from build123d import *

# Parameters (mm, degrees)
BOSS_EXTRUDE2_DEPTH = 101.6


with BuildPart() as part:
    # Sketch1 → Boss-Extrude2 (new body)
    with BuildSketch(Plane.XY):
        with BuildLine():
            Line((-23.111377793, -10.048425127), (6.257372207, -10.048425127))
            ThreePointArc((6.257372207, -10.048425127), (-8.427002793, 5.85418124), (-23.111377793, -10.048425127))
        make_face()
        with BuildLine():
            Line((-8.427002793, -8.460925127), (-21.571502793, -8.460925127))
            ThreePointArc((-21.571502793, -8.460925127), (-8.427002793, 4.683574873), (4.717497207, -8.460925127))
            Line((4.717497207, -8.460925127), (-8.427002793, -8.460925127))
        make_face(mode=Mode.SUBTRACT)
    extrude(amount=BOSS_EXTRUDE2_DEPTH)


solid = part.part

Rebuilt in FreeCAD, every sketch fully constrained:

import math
import FreeCAD as App
import Part
import Sketcher
Q = App.Units.Quantity

doc = App.newDocument("Part")
params = doc.addObject("Spreadsheet::Sheet", "Params")
for row, (alias, value) in enumerate([
    ("sketch1_width", "1.15625 in"),
    ("pad1_length", "4 in"),
], start=1):
    params.set(f"A{row}", alias)
    params.set(f"B{row}", "=" + value)
    params.setAlias(f"B{row}", alias)

body = doc.addObject("PartDesign::Body", "Body")

# Sketch on XY plane
sketch1 = doc.addObject("Sketcher::SketchObject", "Sketch")
body.addObject(sketch1)
sketch1.AttachmentSupport = (doc.XY_Plane, [""])
sketch1.MapMode = "FlatFace"
sketch1.addGeometry([
    Part.LineSegment(App.Vector(-23, -10, 0), App.Vector(6, -10, 0)),
    Part.ArcOfCircle(Part.Circle(App.Vector(-8, -9, 0), App.Vector(0, 0, 1), 15), math.radians(-5), math.radians(185)),
    Part.LineSegment(App.Vector(5, -8, 0), App.Vector(-22, -8, 0)),
    Part.ArcOfCircle(Part.Circle(App.Vector(-8, -8, 0), App.Vector(0, 0, 1), 13), math.radians(0), math.radians(180)),
], False)
sketch1.addConstraint([
    Sketcher.Constraint("Coincident", 0, 1, 1, 2),
    Sketcher.Constraint("Coincident", 1, 1, 0, 2),
    Sketcher.Constraint("Coincident", 2, 1, 3, 1),
    Sketcher.Constraint("Coincident", 3, 2, 2, 2),
    Sketcher.Constraint("Horizontal", 0),
    Sketcher.Constraint("Horizontal", 2),
    Sketcher.Constraint("Horizontal", 3, 3, 2, 1),
    Sketcher.Constraint("Vertical", 1, 3, 3, 3),
    Sketcher.Constraint("Radius", 3, Q("0.5175 in")),
    Sketcher.Constraint("DistanceX", 0, 1, 0, 2, Q("1.15625 in")),
    Sketcher.Constraint("DistanceY", 0, 1, 3, 3, Q("0.0625 in")),
    Sketcher.Constraint("Radius", 1, 14.731037),
    Sketcher.Constraint("DistanceX", 1, 3, -1, 1, 8.427003),
    Sketcher.Constraint("DistanceY", 1, 3, -1, 1, 8.876856),
])
sketch1.setExpression("Constraints[9]", "Params.sketch1_width")
pad1 = doc.addObject("PartDesign::Pad", "Pad")
body.addObject(pad1)
pad1.Profile = sketch1
pad1.setExpression("Length", "Params.pad1_length")

doc.recompute()
